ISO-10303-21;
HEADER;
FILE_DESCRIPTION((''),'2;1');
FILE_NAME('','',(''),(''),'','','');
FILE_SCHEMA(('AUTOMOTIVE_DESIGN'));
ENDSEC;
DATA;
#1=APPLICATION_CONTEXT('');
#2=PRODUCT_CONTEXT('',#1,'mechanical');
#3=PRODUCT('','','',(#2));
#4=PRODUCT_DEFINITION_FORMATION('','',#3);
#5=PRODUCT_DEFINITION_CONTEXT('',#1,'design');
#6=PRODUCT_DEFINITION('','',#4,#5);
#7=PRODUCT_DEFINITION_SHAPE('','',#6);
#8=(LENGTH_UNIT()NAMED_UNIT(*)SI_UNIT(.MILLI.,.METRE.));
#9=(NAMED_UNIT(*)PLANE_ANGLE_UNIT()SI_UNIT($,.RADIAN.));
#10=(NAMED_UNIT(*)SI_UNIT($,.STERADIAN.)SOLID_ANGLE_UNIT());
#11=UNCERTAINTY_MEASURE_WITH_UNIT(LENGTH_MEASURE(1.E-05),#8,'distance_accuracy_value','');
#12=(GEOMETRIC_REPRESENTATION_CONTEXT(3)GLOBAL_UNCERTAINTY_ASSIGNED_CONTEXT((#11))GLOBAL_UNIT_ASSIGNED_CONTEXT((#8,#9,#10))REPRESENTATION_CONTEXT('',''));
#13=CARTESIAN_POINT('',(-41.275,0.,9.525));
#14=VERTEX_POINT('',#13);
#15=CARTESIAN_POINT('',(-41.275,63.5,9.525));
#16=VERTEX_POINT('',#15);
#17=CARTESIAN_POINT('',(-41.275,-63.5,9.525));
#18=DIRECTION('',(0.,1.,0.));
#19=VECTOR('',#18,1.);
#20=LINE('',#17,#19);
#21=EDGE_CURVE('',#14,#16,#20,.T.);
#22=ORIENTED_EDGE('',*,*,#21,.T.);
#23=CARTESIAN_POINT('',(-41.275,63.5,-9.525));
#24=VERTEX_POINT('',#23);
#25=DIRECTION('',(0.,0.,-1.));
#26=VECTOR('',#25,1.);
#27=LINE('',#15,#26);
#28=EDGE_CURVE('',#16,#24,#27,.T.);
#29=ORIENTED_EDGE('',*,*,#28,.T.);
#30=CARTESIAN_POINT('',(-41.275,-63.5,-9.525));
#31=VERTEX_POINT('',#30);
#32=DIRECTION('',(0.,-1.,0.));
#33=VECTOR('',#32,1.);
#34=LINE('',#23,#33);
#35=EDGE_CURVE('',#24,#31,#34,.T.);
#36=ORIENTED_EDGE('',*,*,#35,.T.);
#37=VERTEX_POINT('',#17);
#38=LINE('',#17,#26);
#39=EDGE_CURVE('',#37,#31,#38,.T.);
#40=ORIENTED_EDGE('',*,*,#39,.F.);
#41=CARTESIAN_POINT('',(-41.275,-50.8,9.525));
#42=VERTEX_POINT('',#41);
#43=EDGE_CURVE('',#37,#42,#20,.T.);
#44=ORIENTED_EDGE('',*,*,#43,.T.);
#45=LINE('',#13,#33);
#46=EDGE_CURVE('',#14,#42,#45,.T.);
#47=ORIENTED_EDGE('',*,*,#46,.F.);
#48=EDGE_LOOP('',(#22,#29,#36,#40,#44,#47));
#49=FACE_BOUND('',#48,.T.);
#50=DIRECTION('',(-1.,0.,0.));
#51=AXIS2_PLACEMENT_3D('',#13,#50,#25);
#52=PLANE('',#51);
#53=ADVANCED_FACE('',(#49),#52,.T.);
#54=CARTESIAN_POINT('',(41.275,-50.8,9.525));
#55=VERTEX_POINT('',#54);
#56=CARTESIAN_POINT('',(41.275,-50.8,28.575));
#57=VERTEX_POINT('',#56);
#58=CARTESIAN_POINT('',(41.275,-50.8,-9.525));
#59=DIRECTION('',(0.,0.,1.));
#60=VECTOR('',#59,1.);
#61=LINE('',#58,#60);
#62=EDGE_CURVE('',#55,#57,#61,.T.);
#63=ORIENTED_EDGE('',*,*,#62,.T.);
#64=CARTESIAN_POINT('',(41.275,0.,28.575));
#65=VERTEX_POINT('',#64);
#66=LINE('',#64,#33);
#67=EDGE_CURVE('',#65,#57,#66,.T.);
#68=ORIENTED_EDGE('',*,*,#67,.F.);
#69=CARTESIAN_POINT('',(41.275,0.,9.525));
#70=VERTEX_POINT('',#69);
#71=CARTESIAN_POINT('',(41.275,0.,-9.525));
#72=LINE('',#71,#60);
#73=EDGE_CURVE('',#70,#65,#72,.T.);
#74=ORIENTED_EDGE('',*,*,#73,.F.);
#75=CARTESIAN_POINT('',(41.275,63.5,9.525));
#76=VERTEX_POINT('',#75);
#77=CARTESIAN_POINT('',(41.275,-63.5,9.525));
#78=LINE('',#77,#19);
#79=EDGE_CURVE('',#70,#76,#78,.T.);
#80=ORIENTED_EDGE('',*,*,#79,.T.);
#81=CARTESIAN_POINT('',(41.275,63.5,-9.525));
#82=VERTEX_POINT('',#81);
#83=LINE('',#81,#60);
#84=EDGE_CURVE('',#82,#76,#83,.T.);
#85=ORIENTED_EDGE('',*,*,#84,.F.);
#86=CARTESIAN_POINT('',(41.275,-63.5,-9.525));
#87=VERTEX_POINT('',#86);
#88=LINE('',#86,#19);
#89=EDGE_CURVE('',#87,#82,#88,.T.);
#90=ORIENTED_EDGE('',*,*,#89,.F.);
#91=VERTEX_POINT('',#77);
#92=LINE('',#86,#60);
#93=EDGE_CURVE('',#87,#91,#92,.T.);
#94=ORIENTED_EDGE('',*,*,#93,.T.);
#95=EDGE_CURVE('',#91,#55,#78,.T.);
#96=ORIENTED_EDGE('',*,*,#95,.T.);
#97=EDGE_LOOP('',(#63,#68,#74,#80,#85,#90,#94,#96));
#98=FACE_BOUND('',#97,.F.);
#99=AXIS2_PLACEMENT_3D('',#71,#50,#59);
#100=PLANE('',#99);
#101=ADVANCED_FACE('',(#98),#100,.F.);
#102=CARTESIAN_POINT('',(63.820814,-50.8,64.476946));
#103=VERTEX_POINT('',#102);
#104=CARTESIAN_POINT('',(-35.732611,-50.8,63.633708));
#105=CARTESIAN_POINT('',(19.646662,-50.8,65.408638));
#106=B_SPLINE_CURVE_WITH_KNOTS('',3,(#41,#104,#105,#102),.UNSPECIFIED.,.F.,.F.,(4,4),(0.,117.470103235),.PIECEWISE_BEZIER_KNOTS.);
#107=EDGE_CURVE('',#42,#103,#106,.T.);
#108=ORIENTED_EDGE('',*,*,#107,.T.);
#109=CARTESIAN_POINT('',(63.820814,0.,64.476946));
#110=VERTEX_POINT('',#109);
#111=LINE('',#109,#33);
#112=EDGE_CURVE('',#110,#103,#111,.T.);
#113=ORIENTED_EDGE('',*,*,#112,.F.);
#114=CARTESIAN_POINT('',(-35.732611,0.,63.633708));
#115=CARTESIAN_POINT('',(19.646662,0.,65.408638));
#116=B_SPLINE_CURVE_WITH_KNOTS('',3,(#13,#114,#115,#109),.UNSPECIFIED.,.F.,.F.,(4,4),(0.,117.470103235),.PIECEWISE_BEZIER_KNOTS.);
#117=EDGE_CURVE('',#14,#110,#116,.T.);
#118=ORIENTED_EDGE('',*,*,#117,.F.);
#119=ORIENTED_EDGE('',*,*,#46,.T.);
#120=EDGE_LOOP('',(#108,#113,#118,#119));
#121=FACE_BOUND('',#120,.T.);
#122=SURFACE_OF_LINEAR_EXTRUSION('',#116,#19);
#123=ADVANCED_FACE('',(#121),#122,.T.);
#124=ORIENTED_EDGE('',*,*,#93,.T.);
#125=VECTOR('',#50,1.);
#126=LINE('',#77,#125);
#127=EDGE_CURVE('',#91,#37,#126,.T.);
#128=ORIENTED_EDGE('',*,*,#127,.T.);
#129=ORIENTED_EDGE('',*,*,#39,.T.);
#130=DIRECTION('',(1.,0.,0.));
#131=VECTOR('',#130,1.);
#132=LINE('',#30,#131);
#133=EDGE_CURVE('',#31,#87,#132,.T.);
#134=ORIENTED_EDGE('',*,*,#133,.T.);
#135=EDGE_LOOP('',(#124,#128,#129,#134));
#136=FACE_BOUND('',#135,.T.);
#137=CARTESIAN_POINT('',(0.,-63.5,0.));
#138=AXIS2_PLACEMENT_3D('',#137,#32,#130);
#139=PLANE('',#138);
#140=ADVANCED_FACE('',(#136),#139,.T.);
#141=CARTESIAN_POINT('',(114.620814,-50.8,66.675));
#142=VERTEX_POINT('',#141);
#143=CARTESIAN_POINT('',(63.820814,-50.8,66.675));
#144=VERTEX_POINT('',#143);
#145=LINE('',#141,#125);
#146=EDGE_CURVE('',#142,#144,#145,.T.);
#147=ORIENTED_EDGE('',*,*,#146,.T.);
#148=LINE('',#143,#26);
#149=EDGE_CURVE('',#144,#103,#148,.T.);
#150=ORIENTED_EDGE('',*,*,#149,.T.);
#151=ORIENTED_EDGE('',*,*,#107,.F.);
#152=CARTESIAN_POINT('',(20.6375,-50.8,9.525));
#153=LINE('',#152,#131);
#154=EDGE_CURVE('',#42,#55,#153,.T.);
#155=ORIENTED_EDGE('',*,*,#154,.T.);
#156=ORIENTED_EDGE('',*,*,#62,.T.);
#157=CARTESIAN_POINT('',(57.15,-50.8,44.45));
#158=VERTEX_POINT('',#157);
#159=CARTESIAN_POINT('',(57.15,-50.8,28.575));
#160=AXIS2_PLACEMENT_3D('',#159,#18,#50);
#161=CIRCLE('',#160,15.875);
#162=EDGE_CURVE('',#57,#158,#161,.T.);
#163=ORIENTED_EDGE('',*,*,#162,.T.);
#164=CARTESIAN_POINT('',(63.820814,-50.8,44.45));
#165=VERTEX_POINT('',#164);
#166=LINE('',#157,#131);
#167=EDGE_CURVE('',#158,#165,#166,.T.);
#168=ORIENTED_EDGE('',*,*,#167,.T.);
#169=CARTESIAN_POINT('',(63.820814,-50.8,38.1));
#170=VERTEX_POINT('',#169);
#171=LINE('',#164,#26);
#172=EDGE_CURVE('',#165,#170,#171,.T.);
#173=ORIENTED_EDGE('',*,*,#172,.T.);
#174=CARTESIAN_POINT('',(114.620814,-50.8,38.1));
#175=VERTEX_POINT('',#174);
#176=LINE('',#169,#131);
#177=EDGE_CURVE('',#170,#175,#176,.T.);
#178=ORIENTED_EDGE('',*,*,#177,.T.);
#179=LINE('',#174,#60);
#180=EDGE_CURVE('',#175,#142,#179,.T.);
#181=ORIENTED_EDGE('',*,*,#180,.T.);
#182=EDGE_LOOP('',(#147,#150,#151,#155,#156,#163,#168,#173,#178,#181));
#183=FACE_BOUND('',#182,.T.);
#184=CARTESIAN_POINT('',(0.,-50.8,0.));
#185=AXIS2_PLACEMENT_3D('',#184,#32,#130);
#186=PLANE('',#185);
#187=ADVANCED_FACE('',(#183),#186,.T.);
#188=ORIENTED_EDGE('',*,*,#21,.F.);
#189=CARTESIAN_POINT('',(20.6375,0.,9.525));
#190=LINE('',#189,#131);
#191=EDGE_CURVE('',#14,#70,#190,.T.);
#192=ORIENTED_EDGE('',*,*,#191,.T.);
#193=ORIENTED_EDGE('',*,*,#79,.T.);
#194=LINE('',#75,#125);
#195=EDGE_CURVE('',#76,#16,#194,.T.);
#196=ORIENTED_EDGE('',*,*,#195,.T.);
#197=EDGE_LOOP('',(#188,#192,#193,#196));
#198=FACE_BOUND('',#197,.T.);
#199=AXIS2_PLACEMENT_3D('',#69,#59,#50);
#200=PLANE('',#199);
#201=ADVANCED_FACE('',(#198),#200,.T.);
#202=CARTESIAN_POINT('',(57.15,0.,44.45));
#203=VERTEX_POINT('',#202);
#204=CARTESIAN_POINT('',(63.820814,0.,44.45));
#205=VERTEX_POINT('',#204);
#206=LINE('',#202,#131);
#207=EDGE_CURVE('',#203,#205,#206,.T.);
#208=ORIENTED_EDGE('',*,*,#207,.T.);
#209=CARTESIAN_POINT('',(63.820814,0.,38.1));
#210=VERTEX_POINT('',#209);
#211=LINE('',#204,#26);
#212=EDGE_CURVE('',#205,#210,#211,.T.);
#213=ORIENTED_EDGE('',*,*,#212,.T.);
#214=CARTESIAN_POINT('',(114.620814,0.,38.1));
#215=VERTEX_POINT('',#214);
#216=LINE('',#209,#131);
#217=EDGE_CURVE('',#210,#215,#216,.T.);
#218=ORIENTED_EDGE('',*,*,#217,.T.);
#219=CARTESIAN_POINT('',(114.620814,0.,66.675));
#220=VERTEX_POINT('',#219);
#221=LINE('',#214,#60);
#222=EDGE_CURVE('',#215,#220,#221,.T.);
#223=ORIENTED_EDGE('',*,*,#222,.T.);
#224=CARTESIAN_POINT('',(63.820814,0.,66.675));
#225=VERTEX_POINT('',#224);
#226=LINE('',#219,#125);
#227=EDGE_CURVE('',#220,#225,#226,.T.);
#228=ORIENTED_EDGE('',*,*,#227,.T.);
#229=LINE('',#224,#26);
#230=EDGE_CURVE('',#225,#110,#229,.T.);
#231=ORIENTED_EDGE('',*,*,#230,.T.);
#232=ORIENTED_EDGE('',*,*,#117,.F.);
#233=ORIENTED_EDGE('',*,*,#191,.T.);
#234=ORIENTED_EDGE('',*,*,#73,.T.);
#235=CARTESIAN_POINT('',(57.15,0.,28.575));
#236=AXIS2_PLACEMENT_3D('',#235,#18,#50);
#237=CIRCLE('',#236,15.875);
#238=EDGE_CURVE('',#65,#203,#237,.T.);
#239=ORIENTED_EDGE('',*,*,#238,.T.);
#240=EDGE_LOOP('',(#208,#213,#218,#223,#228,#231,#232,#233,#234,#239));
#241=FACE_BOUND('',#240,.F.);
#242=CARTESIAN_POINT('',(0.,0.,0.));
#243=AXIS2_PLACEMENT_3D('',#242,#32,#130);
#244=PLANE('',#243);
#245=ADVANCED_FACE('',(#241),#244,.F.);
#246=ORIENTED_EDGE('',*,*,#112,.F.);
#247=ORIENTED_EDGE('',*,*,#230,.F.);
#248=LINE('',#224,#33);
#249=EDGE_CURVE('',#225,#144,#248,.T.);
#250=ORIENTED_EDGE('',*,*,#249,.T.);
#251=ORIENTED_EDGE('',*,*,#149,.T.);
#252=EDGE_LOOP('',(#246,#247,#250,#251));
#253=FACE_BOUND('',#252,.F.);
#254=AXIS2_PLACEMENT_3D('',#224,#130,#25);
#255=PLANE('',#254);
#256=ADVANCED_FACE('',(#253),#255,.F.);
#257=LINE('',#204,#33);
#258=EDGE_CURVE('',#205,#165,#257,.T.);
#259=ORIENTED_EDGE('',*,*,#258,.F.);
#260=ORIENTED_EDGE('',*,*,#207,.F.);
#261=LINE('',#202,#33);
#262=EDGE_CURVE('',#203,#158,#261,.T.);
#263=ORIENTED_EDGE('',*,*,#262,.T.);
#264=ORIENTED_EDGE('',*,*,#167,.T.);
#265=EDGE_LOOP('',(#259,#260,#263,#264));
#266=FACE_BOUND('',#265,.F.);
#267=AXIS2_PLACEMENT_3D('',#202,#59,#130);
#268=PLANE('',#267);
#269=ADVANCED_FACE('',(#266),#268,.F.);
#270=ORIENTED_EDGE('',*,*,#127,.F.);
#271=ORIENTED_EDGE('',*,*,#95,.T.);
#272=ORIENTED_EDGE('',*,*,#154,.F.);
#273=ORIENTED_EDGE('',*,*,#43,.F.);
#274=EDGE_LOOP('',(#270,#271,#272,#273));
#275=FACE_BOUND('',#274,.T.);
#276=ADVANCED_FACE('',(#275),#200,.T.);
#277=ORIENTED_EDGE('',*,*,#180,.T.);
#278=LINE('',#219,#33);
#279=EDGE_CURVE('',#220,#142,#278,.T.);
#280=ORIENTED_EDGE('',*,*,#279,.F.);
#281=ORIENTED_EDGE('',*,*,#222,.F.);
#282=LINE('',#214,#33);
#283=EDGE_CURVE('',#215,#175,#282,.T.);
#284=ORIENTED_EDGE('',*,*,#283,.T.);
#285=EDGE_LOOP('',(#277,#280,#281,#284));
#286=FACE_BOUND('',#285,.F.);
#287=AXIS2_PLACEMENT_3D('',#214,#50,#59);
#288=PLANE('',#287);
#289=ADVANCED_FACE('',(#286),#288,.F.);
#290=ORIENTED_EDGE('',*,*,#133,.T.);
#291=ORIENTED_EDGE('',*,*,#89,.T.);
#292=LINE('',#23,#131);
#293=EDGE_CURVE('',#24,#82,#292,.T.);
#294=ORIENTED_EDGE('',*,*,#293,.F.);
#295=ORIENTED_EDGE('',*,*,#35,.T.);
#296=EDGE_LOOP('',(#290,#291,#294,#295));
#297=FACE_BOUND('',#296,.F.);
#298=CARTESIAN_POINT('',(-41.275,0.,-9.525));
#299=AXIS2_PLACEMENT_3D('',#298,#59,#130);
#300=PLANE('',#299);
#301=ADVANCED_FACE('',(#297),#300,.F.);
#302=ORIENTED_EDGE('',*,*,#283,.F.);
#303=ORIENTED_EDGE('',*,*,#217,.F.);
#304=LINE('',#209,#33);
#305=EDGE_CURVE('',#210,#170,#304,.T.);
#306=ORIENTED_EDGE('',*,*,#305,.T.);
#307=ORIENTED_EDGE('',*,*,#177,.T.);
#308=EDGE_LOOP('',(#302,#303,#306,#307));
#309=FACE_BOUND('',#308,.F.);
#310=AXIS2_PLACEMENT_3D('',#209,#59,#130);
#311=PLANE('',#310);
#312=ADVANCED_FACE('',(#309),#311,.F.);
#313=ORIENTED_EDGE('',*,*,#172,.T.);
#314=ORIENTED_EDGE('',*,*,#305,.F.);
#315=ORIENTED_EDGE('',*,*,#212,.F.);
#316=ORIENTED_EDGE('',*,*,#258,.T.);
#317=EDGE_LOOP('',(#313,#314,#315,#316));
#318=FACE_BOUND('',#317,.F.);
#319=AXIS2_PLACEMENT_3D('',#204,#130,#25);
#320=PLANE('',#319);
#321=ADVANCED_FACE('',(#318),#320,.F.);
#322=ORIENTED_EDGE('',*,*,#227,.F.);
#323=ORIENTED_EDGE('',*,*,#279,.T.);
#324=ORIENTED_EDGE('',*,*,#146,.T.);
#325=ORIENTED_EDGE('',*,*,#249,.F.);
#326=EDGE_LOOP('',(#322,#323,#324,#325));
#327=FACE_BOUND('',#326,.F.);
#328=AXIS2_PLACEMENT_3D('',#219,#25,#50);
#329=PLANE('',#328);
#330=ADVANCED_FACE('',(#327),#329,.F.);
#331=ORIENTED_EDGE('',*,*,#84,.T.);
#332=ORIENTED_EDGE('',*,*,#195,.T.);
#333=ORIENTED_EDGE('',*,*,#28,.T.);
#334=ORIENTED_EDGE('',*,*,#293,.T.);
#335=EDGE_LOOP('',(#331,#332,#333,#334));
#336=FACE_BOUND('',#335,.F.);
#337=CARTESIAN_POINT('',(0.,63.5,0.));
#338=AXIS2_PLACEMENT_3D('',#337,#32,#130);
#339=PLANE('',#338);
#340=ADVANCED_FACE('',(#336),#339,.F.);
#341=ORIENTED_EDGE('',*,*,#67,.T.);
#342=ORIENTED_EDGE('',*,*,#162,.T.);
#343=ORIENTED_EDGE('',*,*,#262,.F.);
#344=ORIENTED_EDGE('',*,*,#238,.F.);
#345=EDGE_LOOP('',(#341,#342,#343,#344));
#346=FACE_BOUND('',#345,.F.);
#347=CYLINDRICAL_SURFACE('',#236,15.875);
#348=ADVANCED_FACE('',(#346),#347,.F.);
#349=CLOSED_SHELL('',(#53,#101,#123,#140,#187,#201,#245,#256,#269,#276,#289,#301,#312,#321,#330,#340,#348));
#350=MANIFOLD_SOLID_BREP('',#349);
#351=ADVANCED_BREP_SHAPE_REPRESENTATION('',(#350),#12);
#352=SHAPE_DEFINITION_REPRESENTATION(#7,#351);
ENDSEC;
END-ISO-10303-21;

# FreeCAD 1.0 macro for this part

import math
import FreeCAD as App
import Part
import Sketcher
from FreeCAD import Vector
Q = App.Units.Quantity


def add_polygon(sketch, points):
    """Adds a closed chain of lines whose ends are joined by coincident constraints."""
    first, n = sketch.GeometryCount, len(points)
    for a, b in zip(points, points[1:] + points[:1]):
        sketch.addGeometry(Part.LineSegment(App.Vector(*a, 0), App.Vector(*b, 0)), False)
    for i in range(n):
        sketch.addConstraint(Sketcher.Constraint("Coincident", first + i, 2, first + (i + 1) % n, 1))

doc = App.newDocument("Part")
params = doc.addObject("Spreadsheet::Sheet", "Params")
for row, (alias, value) in enumerate([
    ("sketch1_width", "3.25 in"),
    ("sketch1_height", "0.75 in"),
    ("pad1_length", "5 in"),
    ("sketch2_width", "2 in"),
    ("sketch2_height", "1.5 in"),
    ("sketch2_radius", "0.625 in"),
    ("sketch2_width2", "3.25 in"),
    ("sketch2_height2", "0.25 in"),
    ("pad2_length", "2 in"),
], start=1):
    params.set(f"A{row}", alias)
    params.set(f"B{row}", "=" + value)
    params.setAlias(f"B{row}", alias)

body = doc.addObject("PartDesign::Body", "Body")

# Sketch on XZ plane
sketch1 = body.newObject("Sketcher::SketchObject", "Sketch")
sketch1.AttachmentSupport = (doc.getObject("XZ_Plane"), [""])
sketch1.MapMode = "FlatFace"
add_polygon(sketch1, [(-41, 10), (-41, -10), (41, -10), (41, 10)])  # lines 0-3
sketch1.addConstraint(Sketcher.Constraint("Vertical", 0))
sketch1.addConstraint(Sketcher.Constraint("Horizontal", 1))
sketch1.addConstraint(Sketcher.Constraint("Vertical", 2))
sketch1.addConstraint(Sketcher.Constraint("Horizontal", 3))
sketch1.addConstraint(Sketcher.Constraint("Symmetric", 0, 2, 2, 2, -1, 1))
sketch1.addConstraint(Sketcher.Constraint("DistanceX", 1, 1, 1, 2, Q("3.25 in")))
sketch1.addConstraint(Sketcher.Constraint("DistanceY", 0, 2, 0, 1, Q("0.75 in")))
sketch1.setExpression("Constraints[9]", "Params.sketch1_width")
sketch1.setExpression("Constraints[10]", "Params.sketch1_height")
pad1 = body.newObject("PartDesign::Pad", "Pad")
pad1.Profile = sketch1
pad1.setExpression("Length", "Params.pad1_length")
pad1.Midplane = True

# Sketch on XZ plane
sketch2 = body.newObject("Sketcher::SketchObject", "Sketch001")
sketch2.AttachmentSupport = (doc.getObject("XZ_Plane"), [""])
sketch2.MapMode = "FlatFace"
sketch2.addGeometry(Part.LineSegment(Vector(57.15, 44.45, 0), Vector(63.820814, 44.45, 0)), False)
sketch2.addGeometry(Part.LineSegment(Vector(63.820814, 44.45, 0), Vector(63.820814, 38.1, 0)), False)
sketch2.addGeometry(Part.LineSegment(Vector(63.820814, 38.1, 0), Vector(114.620814, 38.1, 0)), False)
sketch2.addGeometry(Part.LineSegment(Vector(114.620814, 38.1, 0), Vector(114.620814, 66.675, 0)), False)
sketch2.addGeometry(Part.LineSegment(Vector(114.620814, 66.675, 0), Vector(63.820814, 66.675, 0)), False)
sketch2.addGeometry(Part.LineSegment(Vector(63.820814, 66.675, 0), Vector(63.820814, 64.476946, 0)), False)
sketch2.addGeometry(Part.BSplineCurve([Vector(-41.275, 9.525, 0), Vector(-35.732611, 63.633708, 0), Vector(19.646662, 65.408638, 0), Vector(63.820814, 64.476946, 0)], [4, 4], [0, 117.470103235], False, 3, [1, 1, 1, 1], False), False)
sketch2.addGeometry(Part.LineSegment(Vector(-41.275, 9.525, 0), Vector(-41.275, -9.525, 0)), False)
sketch2.addGeometry(Part.LineSegment(Vector(-41.275, -9.525, 0), Vector(41.275, -9.525, 0)), False)
sketch2.addGeometry(Part.LineSegment(Vector(41.275, -9.525, 0), Vector(41.275, 28.575, 0)), False)
sketch2.addGeometry(Part.ArcOfCircle(Part.Circle(Vector(57.15, 28.575, 0), Vector(0, 0, 1), 15.875), math.radians(90), math.radians(180)), False)
sketch2.addConstraint(Sketcher.Constraint("Block", 6))
sketch2.addConstraint(Sketcher.Constraint("Coincident", 0, 2, 1, 1))
sketch2.addConstraint(Sketcher.Constraint("Coincident", 1, 2, 2, 1))
sketch2.addConstraint(Sketcher.Constraint("Coincident", 2, 2, 3, 1))
sketch2.addConstraint(Sketcher.Constraint("Coincident", 3, 2, 4, 1))
sketch2.addConstraint(Sketcher.Constraint("Coincident", 4, 2, 5, 1))
sketch2.addConstraint(Sketcher.Constraint("Coincident", 5, 2, 6, 2))
sketch2.addConstraint(Sketcher.Constraint("Coincident", 6, 1, 7, 1))
sketch2.addConstraint(Sketcher.Constraint("Coincident", 7, 2, 8, 1))
sketch2.addConstraint(Sketcher.Constraint("Coincident", 8, 2, 9, 1))
sketch2.addConstraint(Sketcher.Constraint("Tangent", 9, 2, 10, 2))
sketch2.addConstraint(Sketcher.Constraint("Tangent", 10, 1, 0, 1))
sketch2.addConstraint(Sketcher.Constraint("Horizontal", 0))
sketch2.addConstraint(Sketcher.Constraint("Vertical", 1))
sketch2.addConstraint(Sketcher.Constraint("Horizontal", 2))
sketch2.addConstraint(Sketcher.Constraint("Vertical", 3))
sketch2.addConstraint(Sketcher.Constraint("Horizontal", 4))
sketch2.addConstraint(Sketcher.Constraint("Vertical", 5))
sketch2.addConstraint(Sketcher.Constraint("Vertical", 7))
sketch2.addConstraint(Sketcher.Constraint("Horizontal", 8))
sketch2.addConstraint(Sketcher.Constraint("Vertical", 9))
sketch2.addConstraint(Sketcher.Constraint("Vertical", 1, 2, 4, 2))
sketch2.addConstraint(Sketcher.Constraint("DistanceX", 2, 1, 2, 2, Q("2 in")))
sketch2.addConstraint(Sketcher.Constraint("DistanceY", 9, 1, 9, 2, Q("1.5 in")))
sketch2.addConstraint(Sketcher.Constraint("Radius", 10, Q("0.625 in")))
sketch2.addConstraint(Sketcher.Constraint("DistanceY", 7, 2, 4, 2, Q("3 in")))
sketch2.addConstraint(Sketcher.Constraint("DistanceX", 8, 1, 8, 2, Q("3.25 in")))
sketch2.addConstraint(Sketcher.Constraint("DistanceY", 1, 2, 1, 1, Q("0.25 in")))
sketch2.addConstraint(Sketcher.Constraint("DistanceY", 7, 2, 7, 1, Q("0.75 in")))
sketch2.setExpression("Constraints[22]", "Params.sketch2_width")
sketch2.setExpression("Constraints[23]", "Params.sketch2_height")
sketch2.setExpression("Constraints[24]", "Params.sketch2_radius")
sketch2.setExpression("Constraints[26]", "Params.sketch2_width2")
sketch2.setExpression("Constraints[27]", "Params.sketch2_height2")
pad2 = body.newObject("PartDesign::Pad", "Pad001")
pad2.Profile = sketch2
pad2.setExpression("Length", "Params.pad2_length")

doc.recompute()
